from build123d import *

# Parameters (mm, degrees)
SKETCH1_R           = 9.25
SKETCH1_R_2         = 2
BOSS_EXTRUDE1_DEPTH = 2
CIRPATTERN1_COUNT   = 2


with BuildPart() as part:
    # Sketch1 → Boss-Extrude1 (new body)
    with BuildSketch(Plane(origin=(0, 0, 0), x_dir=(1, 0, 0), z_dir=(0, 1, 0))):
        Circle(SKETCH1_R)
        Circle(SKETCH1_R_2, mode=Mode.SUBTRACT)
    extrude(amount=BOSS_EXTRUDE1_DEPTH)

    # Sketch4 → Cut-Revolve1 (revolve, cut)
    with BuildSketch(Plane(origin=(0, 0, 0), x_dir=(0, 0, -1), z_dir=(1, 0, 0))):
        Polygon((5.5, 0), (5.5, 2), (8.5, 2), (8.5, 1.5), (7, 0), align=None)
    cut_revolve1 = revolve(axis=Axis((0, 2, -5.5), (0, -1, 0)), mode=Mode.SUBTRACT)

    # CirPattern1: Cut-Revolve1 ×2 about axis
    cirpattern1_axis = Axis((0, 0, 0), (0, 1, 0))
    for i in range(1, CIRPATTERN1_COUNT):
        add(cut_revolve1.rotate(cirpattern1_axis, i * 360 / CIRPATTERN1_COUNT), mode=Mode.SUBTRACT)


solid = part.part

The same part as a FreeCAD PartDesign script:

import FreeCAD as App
import Part
import Sketcher

V = App.Vector
Q = App.Units.Quantity


def add_polygon(sketch, points):
    """Adds a closed chain of lines whose ends are joined by coincident constraints."""
    first, n = sketch.GeometryCount, len(points)
    for a, b in zip(points, points[1:] + points[:1]):
        sketch.addGeometry(Part.LineSegment(App.Vector(*a, 0), App.Vector(*b, 0)), False)
    for i in range(n):
        sketch.addConstraint(Sketcher.Constraint("Coincident", first + i, 2, first + (i + 1) % n, 1))

doc = App.newDocument("Part")
body = doc.addObject("PartDesign::Body", "Body")

# Sketch on XZ plane
sketch1 = body.newObject("Sketcher::SketchObject", "Sketch")
sketch1.AttachmentSupport = (doc.getObject("XZ_Plane"), [""])
sketch1.MapMode = "FlatFace"
sketch1.addGeometry([
    Part.Circle(V(0, 0, 0), V(0, 0, 1), 9.2),
    Part.Circle(V(0, 0, 0), V(0, 0, 1), 2),
], False)
sketch1.addConstraint([
    Sketcher.Constraint("Coincident", 0, 3, -1, 1),
    Sketcher.Constraint("Coincident", 1, 3, -1, 1),
    Sketcher.Constraint("Diameter", 1, 4.0),
    Sketcher.Constraint("Diameter", 0, 18.5),
])
pad1 = body.newObject("PartDesign::Pad", "Pad")
pad1.Profile = sketch1
pad1.Length = 2
pad1.Reversed = True

# Sketch on YZ plane
sketch2 = body.newObject("Sketcher::SketchObject", "Sketch001")
sketch2.AttachmentSupport = (doc.getObject("YZ_Plane"), [""])
sketch2.MapMode = "FlatFace"
add_polygon(sketch2, [(2, -5.5), (0, -5.5), (0, -7), (1.5, -8.5), (2, -8.5)])  # lines 0-4
sketch2.addGeometry(Part.LineSegment(V(2, -5.5, 0), V(0, -5.5, 0)), True)  # axis
sketch2.addConstraint([
    Sketcher.Constraint("Horizontal", 0),
    Sketcher.Constraint("Vertical", 1),
    Sketcher.Constraint("Horizontal", 3),
    Sketcher.Constraint("Vertical", 4),
    Sketcher.Constraint("Horizontal", 5),
    Sketcher.Constraint("Coincident", 5, 1, 4, 2),
    Sketcher.Constraint("PointOnObject", 0, 2, -2),
    Sketcher.Constraint("PointOnObject", 5, 2, -2),
    Sketcher.Constraint("DistanceX", 0, 2, 0, 1, 2.0),
    Sketcher.Constraint("DistanceY", 4, 1, 4, 2, 3.0),
    Sketcher.Constraint("Angle", 2, Q("-45 deg")),
    Sketcher.Constraint("DistanceX", 3, 1, 3, 2, 0.5),
    Sketcher.Constraint("DistanceY", 1, 2, -1, 1, 7.0),
])
groove = body.newObject("PartDesign::Groove", "Groove")
groove.Profile = sketch2
groove.ReferenceAxis = (sketch2, ["Axis0"])
groove.Angle = 360
doc.recompute()

polarpattern = body.newObject("PartDesign::PolarPattern", "PolarPattern")
polarpattern.Originals = [groove]
polarpattern.Axis = (doc.getObject("Y_Axis"), [""])
polarpattern.Angle = 360
polarpattern.Occurrences = 2
body.Tip = polarpattern

doc.recompute()
